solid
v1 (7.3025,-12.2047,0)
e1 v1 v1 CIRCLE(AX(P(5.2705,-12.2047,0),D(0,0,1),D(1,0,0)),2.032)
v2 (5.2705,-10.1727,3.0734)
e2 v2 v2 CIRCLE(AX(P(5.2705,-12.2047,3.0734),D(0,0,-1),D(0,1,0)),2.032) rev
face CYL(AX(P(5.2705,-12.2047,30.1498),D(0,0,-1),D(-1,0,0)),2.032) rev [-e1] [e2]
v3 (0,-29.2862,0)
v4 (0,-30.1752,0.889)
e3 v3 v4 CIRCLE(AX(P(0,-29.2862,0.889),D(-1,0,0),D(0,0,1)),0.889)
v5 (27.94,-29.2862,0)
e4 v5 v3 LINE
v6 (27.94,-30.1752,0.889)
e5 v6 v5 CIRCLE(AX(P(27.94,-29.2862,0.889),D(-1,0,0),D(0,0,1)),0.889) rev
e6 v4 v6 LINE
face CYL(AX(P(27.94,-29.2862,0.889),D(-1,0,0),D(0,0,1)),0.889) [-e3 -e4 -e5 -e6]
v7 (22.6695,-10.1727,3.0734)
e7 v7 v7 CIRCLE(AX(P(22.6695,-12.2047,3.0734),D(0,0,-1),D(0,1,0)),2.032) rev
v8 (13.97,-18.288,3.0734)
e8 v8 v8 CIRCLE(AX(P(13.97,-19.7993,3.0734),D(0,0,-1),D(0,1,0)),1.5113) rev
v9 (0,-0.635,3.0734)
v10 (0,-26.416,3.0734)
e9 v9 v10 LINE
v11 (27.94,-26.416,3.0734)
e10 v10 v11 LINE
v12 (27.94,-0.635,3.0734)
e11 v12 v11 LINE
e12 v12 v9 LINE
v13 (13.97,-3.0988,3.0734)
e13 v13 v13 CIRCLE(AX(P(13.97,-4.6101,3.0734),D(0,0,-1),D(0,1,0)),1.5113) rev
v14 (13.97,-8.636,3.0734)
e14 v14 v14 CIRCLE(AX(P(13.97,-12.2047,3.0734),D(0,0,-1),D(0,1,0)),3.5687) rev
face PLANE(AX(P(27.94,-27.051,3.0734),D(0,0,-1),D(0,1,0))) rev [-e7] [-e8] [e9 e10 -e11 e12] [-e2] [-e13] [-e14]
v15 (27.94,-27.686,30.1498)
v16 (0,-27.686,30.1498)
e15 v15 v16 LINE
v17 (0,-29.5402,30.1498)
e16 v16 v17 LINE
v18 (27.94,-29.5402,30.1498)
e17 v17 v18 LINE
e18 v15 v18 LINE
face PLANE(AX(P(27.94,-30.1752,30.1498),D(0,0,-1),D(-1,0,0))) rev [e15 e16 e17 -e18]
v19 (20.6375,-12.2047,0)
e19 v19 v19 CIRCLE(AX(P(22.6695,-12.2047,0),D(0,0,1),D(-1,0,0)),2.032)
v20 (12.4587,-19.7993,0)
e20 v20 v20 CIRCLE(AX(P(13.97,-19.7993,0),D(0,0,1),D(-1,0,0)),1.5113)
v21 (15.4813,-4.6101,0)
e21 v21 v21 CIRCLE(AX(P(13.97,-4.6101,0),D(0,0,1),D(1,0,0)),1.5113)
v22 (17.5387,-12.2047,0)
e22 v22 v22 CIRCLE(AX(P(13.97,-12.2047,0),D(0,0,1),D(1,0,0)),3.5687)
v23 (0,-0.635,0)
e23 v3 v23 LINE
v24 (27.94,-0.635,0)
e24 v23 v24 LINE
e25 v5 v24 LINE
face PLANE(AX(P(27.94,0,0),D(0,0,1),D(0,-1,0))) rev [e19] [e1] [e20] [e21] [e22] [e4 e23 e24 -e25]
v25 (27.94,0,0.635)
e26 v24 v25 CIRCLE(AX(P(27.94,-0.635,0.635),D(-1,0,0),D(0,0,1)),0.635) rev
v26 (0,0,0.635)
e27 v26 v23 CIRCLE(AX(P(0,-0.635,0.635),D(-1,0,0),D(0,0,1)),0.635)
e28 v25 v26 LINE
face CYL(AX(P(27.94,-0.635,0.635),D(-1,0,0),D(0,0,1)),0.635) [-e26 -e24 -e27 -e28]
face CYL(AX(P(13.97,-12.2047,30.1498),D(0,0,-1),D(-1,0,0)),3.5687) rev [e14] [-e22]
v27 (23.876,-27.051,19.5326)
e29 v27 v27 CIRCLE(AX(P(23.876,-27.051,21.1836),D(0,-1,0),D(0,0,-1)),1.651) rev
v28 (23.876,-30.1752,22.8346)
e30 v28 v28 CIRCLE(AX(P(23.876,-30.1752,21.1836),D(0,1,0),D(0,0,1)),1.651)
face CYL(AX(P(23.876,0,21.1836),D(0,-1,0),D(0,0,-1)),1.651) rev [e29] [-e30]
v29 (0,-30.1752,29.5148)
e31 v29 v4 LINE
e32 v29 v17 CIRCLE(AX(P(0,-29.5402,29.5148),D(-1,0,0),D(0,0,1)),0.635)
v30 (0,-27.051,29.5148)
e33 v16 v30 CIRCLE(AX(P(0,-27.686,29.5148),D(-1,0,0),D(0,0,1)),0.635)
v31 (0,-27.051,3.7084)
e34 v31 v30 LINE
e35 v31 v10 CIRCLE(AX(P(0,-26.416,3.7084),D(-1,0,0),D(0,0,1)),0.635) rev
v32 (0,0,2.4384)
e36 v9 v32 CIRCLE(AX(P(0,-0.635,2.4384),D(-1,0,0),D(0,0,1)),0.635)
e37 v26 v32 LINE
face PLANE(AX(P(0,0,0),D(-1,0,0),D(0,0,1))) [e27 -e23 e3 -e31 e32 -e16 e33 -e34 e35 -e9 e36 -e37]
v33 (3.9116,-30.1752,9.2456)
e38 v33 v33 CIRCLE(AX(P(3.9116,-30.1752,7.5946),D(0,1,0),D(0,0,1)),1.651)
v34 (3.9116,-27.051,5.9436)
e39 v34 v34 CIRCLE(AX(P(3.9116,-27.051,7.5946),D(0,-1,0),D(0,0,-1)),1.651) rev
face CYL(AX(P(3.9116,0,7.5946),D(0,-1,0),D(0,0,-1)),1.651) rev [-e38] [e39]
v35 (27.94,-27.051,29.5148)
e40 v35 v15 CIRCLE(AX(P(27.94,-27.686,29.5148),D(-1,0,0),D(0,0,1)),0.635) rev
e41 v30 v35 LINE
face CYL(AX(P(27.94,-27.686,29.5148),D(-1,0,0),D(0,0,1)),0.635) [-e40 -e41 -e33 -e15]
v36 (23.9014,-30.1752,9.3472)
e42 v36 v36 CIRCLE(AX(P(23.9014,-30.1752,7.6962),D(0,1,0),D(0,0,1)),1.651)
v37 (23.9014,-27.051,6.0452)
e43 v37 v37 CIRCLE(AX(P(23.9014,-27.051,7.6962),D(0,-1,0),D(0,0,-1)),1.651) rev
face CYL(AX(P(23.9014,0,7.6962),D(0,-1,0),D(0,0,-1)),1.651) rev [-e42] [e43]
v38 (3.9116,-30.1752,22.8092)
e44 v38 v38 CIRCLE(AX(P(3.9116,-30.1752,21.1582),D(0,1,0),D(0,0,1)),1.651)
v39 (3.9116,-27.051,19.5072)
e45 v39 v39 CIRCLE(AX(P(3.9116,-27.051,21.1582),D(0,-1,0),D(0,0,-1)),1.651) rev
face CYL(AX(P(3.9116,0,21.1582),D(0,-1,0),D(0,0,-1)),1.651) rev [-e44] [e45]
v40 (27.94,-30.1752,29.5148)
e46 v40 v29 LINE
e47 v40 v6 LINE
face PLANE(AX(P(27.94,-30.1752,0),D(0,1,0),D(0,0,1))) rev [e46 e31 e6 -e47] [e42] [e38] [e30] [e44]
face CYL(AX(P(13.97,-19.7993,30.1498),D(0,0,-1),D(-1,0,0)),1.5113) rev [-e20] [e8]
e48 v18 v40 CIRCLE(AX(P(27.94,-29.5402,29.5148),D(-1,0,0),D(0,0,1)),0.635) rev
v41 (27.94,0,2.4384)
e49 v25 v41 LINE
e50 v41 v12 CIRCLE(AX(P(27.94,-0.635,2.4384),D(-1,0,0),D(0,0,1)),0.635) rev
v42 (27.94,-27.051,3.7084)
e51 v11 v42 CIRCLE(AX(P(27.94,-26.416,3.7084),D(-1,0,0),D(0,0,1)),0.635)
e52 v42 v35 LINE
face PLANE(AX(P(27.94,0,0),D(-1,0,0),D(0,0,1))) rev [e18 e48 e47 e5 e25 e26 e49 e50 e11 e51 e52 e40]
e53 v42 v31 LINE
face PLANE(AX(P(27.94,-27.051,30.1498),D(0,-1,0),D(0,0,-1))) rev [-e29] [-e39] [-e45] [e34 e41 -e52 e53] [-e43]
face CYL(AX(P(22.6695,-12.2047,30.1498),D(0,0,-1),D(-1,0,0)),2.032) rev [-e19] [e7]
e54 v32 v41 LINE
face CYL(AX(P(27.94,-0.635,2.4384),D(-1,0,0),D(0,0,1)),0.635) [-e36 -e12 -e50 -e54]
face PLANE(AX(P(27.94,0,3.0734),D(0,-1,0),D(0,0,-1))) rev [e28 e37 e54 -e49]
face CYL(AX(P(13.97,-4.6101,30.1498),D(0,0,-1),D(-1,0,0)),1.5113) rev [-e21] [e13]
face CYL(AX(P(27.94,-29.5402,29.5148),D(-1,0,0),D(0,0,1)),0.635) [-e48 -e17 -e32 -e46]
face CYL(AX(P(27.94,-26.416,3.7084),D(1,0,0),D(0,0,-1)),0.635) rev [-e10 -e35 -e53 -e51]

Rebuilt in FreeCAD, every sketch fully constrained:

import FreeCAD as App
import Part
import Sketcher

V = App.Vector
Q = App.Units.Quantity


def edges_at(feature, points):
    """Names of the edges that pass closest to the given points."""
    edges = feature.Shape.Edges
    near = lambda p: min(range(len(edges)), key=lambda i: edges[i].distToShape(Part.Vertex(*p))[0])
    return sorted({f"Edge{near(p) + 1}" for p in points})

doc = App.newDocument("Part")
body = doc.addObject("PartDesign::Body", "Body")

# Sketch on YZ plane
sketch1 = body.newObject("Sketcher::SketchObject", "Sketch")
sketch1.AttachmentSupport = (doc.getObject("YZ_Plane"), [""])
sketch1.MapMode = "FlatFace"
sketch1.addGeometry([
    Part.LineSegment(V(-30.2, 0, 0), V(0, 0, 0)),  # 0
    Part.LineSegment(V(0, 0, 0), V(0, 3.1, 0)),  # 1
    Part.LineSegment(V(0, 3.1, 0), V(-27.1, 3.1, 0)),  # 2
    Part.LineSegment(V(-27.1, 3.1, 0), V(-27.1, 30.1, 0)),  # 3
    Part.LineSegment(V(-27.1, 30.1, 0), V(-30.2, 30.1, 0)),  # 4
    Part.LineSegment(V(-30.2, 30.1, 0), V(-30.2, 0, 0)),  # 5
], False)
sketch1.addConstraint([
    Sketcher.Constraint("Coincident", 0, 2, 1, 1),
    Sketcher.Constraint("Coincident", 1, 2, 2, 1),
    Sketcher.Constraint("Coincident", 2, 2, 3, 1),
    Sketcher.Constraint("Coincident", 3, 2, 4, 1),
    Sketcher.Constraint("Coincident", 4, 2, 5, 1),
    Sketcher.Constraint("Coincident", 5, 2, 0, 1),
    Sketcher.Constraint("Horizontal", 0),
    Sketcher.Constraint("Vertical", 1),
    Sketcher.Constraint("Horizontal", 2),
    Sketcher.Constraint("Vertical", 3),
    Sketcher.Constraint("Horizontal", 4),
    Sketcher.Constraint("Vertical", 5),
    Sketcher.Constraint("Coincident", 0, 2, -1, 1),
    Sketcher.Constraint("DistanceX", 0, 1, 0, 2, Q("1.188 in")),
    Sketcher.Constraint("DistanceX", 2, 2, 2, 1, Q("1.065 in")),
    Sketcher.Constraint("DistanceY", 1, 1, 1, 2, Q("0.121 in")),
    Sketcher.Constraint("DistanceY", 3, 1, 3, 2, Q("1.066 in")),
])
pad1 = body.newObject("PartDesign::Pad", "Pad")
pad1.Profile = sketch1
pad1.Length = Q("1.1 in")

# Sketch on XY plane
sketch2 = body.newObject("Sketcher::SketchObject", "Sketch001")
sketch2.AttachmentSupport = (doc.getObject("XY_Plane"), [""])
sketch2.MapMode = "FlatFace"
sketch2.addGeometry([
    Part.Circle(V(14, -12.2, 0), V(0, 0, 1), 3.6),  # 0
    Part.Circle(V(14, -4.6, 0), V(0, 0, 1), 1.5),  # 1
    Part.Circle(V(5.3, -12.2, 0), V(0, 0, 1), 2),  # 2
    Part.Circle(V(22.7, -12.2, 0), V(0, 0, 1), 2),  # 3
    Part.Circle(V(14, -19.8, 0), V(0, 0, 1), 1.5),  # 4
], False)
sketch2.addConstraint([
    Sketcher.Constraint("Equal", 2, 3),
    Sketcher.Constraint("Equal", 1, 4),
    Sketcher.Constraint("Horizontal", 0, 3, 2, 3),
    Sketcher.Constraint("Horizontal", 2, 3, 3, 3),
    Sketcher.Constraint("Vertical", 0, 3, 1, 3),
    Sketcher.Constraint("Vertical", 1, 3, 4, 3),
    Sketcher.Constraint("Diameter", 2, Q("0.16 in")),
    Sketcher.Constraint("Diameter", 0, Q("0.281 in")),
    Sketcher.Constraint("Diameter", 1, Q("0.119 in")),
    Sketcher.Constraint("DistanceX", -1, 1, 0, 3, Q("0.55 in")),
    Sketcher.Constraint("DistanceY", 0, 3, 1, 3, Q("0.299 in")),
    Sketcher.Constraint("DistanceX", 2, 3, 3, 3, Q("0.685 in")),
    Sketcher.Constraint("DistanceY", 4, 3, 0, 3, Q("0.299 in")),
    Sketcher.Constraint("DistanceY", 0, 3, -1, 1, Q("0.4805 in")),
    Sketcher.Constraint("DistanceX", -1, 1, 2, 3, Q("0.2075 in")),
])
pocket1 = body.newObject("PartDesign::Pocket", "Pocket")
pocket1.Profile = sketch2
pocket1.Type = "ThroughAll"
pocket1.Reversed = True

# Sketch on XZ plane
sketch3 = body.newObject("Sketcher::SketchObject", "Sketch002")
sketch3.AttachmentSupport = (doc.getObject("XZ_Plane"), [""])
sketch3.MapMode = "FlatFace"
sketch3.AttachmentOffset = App.Placement(V(0, 0, 1.188 * 25.4), App.Rotation())
sketch3.addGeometry([
    Part.Circle(V(3.9, 7.6, 0), V(0, 0, 1), 1.7),
    Part.Circle(V(23.9, 7.7, 0), V(0, 0, 1), 1.7),
    Part.Circle(V(3.9, 21.2, 0), V(0, 0, 1), 1.7),
    Part.Circle(V(23.9, 21.2, 0), V(0, 0, 1), 1.7),
], False)
sketch3.addConstraint([
    Sketcher.Constraint("Equal", 0, 1),
    Sketcher.Constraint("Equal", 1, 2),
    Sketcher.Constraint("Equal", 2, 3),
    Sketcher.Constraint("Vertical", 0, 3, 2, 3),
    Sketcher.Constraint("Diameter", 0, Q("0.13 in")),
    Sketcher.Constraint("DistanceX", -1, 1, 3, 3, Q("0.94 in")),
    Sketcher.Constraint("DistanceY", 1, 3, 2, 3, Q("0.53 in")),
    Sketcher.Constraint("DistanceX", -1, 1, 0, 3, Q("0.154 in")),
    Sketcher.Constraint("DistanceY", -1, 1, 0, 3, Q("0.299 in")),
    Sketcher.Constraint("DistanceX", -1, 1, 1, 3, Q("0.941 in")),
    Sketcher.Constraint("DistanceY", -1, 1, 1, 3, Q("0.303 in")),
    Sketcher.Constraint("DistanceY", -1, 1, 3, 3, Q("0.834 in")),
])
pocket2 = body.newObject("PartDesign::Pocket", "Pocket001")
pocket2.Profile = sketch3
pocket2.Type = "ThroughAll"
doc.recompute()

fillet = body.newObject("PartDesign::Fillet", "Fillet")
fillet.Base = (pocket2, edges_at(pocket2, [(13.97, -27.051, 3.073)]))
fillet.Radius = Q("0.025 in")
doc.recompute()

fillet2 = body.newObject("PartDesign::Fillet", "Fillet001")
fillet2.Base = (fillet, edges_at(fillet, [(13.97, -30.175, 0)]))
fillet2.Radius = Q("0.035 in")
doc.recompute()

fillet3 = body.newObject("PartDesign::Fillet", "Fillet002")
fillet3.Base = (fillet2, edges_at(fillet2, [
    (13.97, 0, 0),
    (13.97, -30.175, 30.15),
    (13.97, -27.051, 30.15),
    (13.97, 0, 3.073),
]))
fillet3.Radius = Q("0.025 in")

doc.recompute()
